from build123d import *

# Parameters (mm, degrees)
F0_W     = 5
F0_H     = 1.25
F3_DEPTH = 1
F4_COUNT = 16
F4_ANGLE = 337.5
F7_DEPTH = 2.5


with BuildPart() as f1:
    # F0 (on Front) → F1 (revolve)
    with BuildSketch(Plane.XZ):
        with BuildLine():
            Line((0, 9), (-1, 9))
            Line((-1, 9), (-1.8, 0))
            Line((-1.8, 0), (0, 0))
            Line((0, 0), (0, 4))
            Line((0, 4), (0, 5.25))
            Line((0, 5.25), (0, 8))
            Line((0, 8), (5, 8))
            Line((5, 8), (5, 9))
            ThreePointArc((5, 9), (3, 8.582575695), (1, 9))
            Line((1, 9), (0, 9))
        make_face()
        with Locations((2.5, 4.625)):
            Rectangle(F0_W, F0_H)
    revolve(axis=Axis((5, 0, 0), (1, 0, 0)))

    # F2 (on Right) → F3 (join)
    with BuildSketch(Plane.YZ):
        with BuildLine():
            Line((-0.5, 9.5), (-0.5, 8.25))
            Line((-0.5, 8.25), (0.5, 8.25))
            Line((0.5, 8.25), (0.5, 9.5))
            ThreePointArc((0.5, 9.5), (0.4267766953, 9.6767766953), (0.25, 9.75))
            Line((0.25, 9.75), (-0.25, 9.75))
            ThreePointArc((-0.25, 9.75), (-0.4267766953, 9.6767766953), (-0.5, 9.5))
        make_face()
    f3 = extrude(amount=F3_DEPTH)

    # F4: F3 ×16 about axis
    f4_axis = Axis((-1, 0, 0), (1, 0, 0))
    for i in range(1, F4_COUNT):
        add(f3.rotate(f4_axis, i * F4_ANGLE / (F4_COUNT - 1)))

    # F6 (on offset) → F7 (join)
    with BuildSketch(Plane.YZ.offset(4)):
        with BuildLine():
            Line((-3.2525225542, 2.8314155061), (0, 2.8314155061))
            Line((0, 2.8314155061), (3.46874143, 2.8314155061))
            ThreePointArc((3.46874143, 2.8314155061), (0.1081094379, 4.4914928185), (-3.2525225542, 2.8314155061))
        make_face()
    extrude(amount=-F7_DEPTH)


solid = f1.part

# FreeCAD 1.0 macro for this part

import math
import FreeCAD as App
import Part
import Sketcher

V = App.Vector
Q = App.Units.Quantity

doc = App.newDocument("Part")
body = doc.addObject("PartDesign::Body", "Body")

# Sketch on XZ plane
sketch1 = body.newObject("Sketcher::SketchObject", "Sketch")
sketch1.AttachmentSupport = (doc.getObject("XZ_Plane"), [""])
sketch1.MapMode = "FlatFace"
sketch1.addGeometry([
    Part.LineSegment(V(-1, 9, 0), V(-1.8, 0, 0)),  # 0
    Part.LineSegment(V(-1.8, 0, 0), V(0, 0, 0)),  # 1
    Part.LineSegment(V(0, 0, 0), V(0, 4, 0)),  # 2
    Part.LineSegment(V(0, 4, 0), V(5, 4, 0)),  # 3
    Part.LineSegment(V(5, 4, 0), V(5, 5.2, 0)),  # 4
    Part.LineSegment(V(5, 5.2, 0), V(0, 5.2, 0)),  # 5
    Part.LineSegment(V(0, 5.2, 0), V(0, 8, 0)),  # 6
    Part.LineSegment(V(0, 8, 0), V(5, 8, 0)),  # 7
    Part.LineSegment(V(5, 8, 0), V(5, 9, 0)),  # 8
    Part.ArcOfCircle(Part.Circle(V(3, 13.6, 0), V(0, 0, 1), 5), math.radians(-114), math.radians(-66)),  # 9
    Part.LineSegment(V(1, 9, 0), V(-1, 9, 0)),  # 10
], False)
sketch1.addConstraint([
    Sketcher.Constraint("Coincident", 0, 2, 1, 1),
    Sketcher.Constraint("Coincident", 1, 2, 2, 1),
    Sketcher.Constraint("Coincident", 2, 2, 3, 1),
    Sketcher.Constraint("Coincident", 3, 2, 4, 1),
    Sketcher.Constraint("Coincident", 4, 2, 5, 1),
    Sketcher.Constraint("Coincident", 5, 2, 6, 1),
    Sketcher.Constraint("Coincident", 6, 2, 7, 1),
    Sketcher.Constraint("Coincident", 7, 2, 8, 1),
    Sketcher.Constraint("Coincident", 8, 2, 9, 2),
    Sketcher.Constraint("Coincident", 9, 1, 10, 1),
    Sketcher.Constraint("Coincident", 10, 2, 0, 1),
    Sketcher.Constraint("Horizontal", 1),
    Sketcher.Constraint("Vertical", 2),
    Sketcher.Constraint("Horizontal", 3),
    Sketcher.Constraint("Vertical", 4),
    Sketcher.Constraint("Horizontal", 5),
    Sketcher.Constraint("Vertical", 6),
    Sketcher.Constraint("Horizontal", 7),
    Sketcher.Constraint("Vertical", 8),
    Sketcher.Constraint("Horizontal", 10),
    Sketcher.Constraint("Coincident", 1, 2, -1, 1),
    Sketcher.Constraint("PointOnObject", 5, 2, -2),
    Sketcher.Constraint("Horizontal", 8, 2, 9, 1),
    Sketcher.Constraint("Vertical", 4, 2, 7, 2),
    Sketcher.Constraint("Radius", 9, Q("5 mm")),
    Sketcher.Constraint("DistanceX", 3, 1, 3, 2, Q("5 mm")),
    Sketcher.Constraint("DistanceX", 10, 2, 10, 1, Q("2 mm")),
    Sketcher.Constraint("DistanceY", 2, 1, 2, 2, Q("4 mm")),
    Sketcher.Constraint("DistanceY", 8, 1, 8, 2, Q("1 mm")),
    Sketcher.Constraint("DistanceX", 1, 1, 1, 2, Q("1.8 mm")),
    Sketcher.Constraint("DistanceX", -1, 1, 9, 3, Q("3 mm")),
    Sketcher.Constraint("DistanceY", -1, 1, 6, 2, Q("8 mm")),
    Sketcher.Constraint("DistanceY", 4, 1, 4, 2, Q("1.25 mm")),
])
revolution = body.newObject("PartDesign::Revolution", "Revolution")
revolution.Profile = sketch1
revolution.ReferenceAxis = (sketch1, ["H_Axis"])
revolution.Angle = 360

# Sketch on YZ plane
sketch2 = body.newObject("Sketcher::SketchObject", "Sketch001")
sketch2.AttachmentSupport = (doc.getObject("YZ_Plane"), [""])
sketch2.MapMode = "FlatFace"
sketch2.addGeometry([
    Part.LineSegment(V(-0.5, 9.5, 0), V(-0.5, 8.25, 0)),  # 0
    Part.LineSegment(V(-0.5, 8.25, 0), V(0.5, 8.25, 0)),  # 1
    Part.LineSegment(V(0.5, 8.25, 0), V(0.5, 9.5, 0)),  # 2
    Part.ArcOfCircle(Part.Circle(V(0.25, 9.5, 0), V(0, 0, 1), 0.25), math.radians(0), math.radians(90)),  # 3
    Part.LineSegment(V(0.25, 9.75, 0), V(-0.25, 9.75, 0)),  # 4
    Part.ArcOfCircle(Part.Circle(V(-0.25, 9.5, 0), V(0, 0, 1), 0.25), math.radians(90), math.radians(180)),  # 5
], False)
sketch2.addConstraint([
    Sketcher.Constraint("Coincident", 0, 2, 1, 1),
    Sketcher.Constraint("Coincident", 1, 2, 2, 1),
    Sketcher.Constraint("Tangent", 2, 2, 3, 1),
    Sketcher.Constraint("Tangent", 3, 2, 4, 1),
    Sketcher.Constraint("Tangent", 4, 2, 5, 1),
    Sketcher.Constraint("Tangent", 5, 2, 0, 1),
    Sketcher.Constraint("Vertical", 0),
    Sketcher.Constraint("Horizontal", 1),
    Sketcher.Constraint("Vertical", 2),
    Sketcher.Constraint("Horizontal", 4),
    Sketcher.Constraint("Equal", 3, 5),
    Sketcher.Constraint("DistanceX", 1, 1, 1, 2, Q("1 mm")),
    Sketcher.Constraint("Radius", 3, Q("0.25 mm")),
    Sketcher.Constraint("DistanceY", 0, 2, 0, 1, Q("1.25 mm")),
    Sketcher.Constraint("DistanceY", -1, 1, 3, 3, Q("9.5 mm")),
    Sketcher.Constraint("DistanceX", 0, 2, -1, 1, Q("0.5 mm")),
])
pad1 = body.newObject("PartDesign::Pad", "Pad")
pad1.Profile = sketch2
pad1.Length = 1
doc.recompute()

polarpattern = body.newObject("PartDesign::PolarPattern", "PolarPattern")
polarpattern.Originals = [pad1]
polarpattern.Axis = (doc.getObject("X_Axis"), [""])
polarpattern.Angle = 360
polarpattern.Occurrences = 16
body.Tip = polarpattern

# Sketch on YZ plane
sketch3 = body.newObject("Sketcher::SketchObject", "Sketch002")
sketch3.AttachmentSupport = (doc.getObject("YZ_Plane"), [""])
sketch3.MapMode = "FlatFace"
sketch3.AttachmentOffset = App.Placement(V(0, 0, 4), App.Rotation())
sketch3.addGeometry([
    Part.LineSegment(V(-3.3, 2.8, 0), V(3.5, 2.8, 0)),
    Part.ArcOfCircle(Part.Circle(V(0.1, 0.3, 0), V(0, 0, 1), 4.2), math.radians(37), math.radians(143)),
], False)
sketch3.addConstraint([
    Sketcher.Constraint("Coincident", 0, 1, 1, 2),
    Sketcher.Constraint("Coincident", 1, 1, 0, 2),
    Sketcher.Constraint("Horizontal", 0),
    Sketcher.Constraint("Radius", 1, Q("4.231641 mm")),
    Sketcher.Constraint("DistanceX", 0, 1, 0, 2, Q("6.721264 mm")),
    Sketcher.Constraint("DistanceX", -1, 1, 1, 3, Q("0.108109 mm")),
    Sketcher.Constraint("DistanceY", -1, 1, 1, 3, Q("0.259851 mm")),
])
pad2 = body.newObject("PartDesign::Pad", "Pad001")
pad2.Profile = sketch3
pad2.Length = 2.5
pad2.Reversed = True

doc.recompute()
